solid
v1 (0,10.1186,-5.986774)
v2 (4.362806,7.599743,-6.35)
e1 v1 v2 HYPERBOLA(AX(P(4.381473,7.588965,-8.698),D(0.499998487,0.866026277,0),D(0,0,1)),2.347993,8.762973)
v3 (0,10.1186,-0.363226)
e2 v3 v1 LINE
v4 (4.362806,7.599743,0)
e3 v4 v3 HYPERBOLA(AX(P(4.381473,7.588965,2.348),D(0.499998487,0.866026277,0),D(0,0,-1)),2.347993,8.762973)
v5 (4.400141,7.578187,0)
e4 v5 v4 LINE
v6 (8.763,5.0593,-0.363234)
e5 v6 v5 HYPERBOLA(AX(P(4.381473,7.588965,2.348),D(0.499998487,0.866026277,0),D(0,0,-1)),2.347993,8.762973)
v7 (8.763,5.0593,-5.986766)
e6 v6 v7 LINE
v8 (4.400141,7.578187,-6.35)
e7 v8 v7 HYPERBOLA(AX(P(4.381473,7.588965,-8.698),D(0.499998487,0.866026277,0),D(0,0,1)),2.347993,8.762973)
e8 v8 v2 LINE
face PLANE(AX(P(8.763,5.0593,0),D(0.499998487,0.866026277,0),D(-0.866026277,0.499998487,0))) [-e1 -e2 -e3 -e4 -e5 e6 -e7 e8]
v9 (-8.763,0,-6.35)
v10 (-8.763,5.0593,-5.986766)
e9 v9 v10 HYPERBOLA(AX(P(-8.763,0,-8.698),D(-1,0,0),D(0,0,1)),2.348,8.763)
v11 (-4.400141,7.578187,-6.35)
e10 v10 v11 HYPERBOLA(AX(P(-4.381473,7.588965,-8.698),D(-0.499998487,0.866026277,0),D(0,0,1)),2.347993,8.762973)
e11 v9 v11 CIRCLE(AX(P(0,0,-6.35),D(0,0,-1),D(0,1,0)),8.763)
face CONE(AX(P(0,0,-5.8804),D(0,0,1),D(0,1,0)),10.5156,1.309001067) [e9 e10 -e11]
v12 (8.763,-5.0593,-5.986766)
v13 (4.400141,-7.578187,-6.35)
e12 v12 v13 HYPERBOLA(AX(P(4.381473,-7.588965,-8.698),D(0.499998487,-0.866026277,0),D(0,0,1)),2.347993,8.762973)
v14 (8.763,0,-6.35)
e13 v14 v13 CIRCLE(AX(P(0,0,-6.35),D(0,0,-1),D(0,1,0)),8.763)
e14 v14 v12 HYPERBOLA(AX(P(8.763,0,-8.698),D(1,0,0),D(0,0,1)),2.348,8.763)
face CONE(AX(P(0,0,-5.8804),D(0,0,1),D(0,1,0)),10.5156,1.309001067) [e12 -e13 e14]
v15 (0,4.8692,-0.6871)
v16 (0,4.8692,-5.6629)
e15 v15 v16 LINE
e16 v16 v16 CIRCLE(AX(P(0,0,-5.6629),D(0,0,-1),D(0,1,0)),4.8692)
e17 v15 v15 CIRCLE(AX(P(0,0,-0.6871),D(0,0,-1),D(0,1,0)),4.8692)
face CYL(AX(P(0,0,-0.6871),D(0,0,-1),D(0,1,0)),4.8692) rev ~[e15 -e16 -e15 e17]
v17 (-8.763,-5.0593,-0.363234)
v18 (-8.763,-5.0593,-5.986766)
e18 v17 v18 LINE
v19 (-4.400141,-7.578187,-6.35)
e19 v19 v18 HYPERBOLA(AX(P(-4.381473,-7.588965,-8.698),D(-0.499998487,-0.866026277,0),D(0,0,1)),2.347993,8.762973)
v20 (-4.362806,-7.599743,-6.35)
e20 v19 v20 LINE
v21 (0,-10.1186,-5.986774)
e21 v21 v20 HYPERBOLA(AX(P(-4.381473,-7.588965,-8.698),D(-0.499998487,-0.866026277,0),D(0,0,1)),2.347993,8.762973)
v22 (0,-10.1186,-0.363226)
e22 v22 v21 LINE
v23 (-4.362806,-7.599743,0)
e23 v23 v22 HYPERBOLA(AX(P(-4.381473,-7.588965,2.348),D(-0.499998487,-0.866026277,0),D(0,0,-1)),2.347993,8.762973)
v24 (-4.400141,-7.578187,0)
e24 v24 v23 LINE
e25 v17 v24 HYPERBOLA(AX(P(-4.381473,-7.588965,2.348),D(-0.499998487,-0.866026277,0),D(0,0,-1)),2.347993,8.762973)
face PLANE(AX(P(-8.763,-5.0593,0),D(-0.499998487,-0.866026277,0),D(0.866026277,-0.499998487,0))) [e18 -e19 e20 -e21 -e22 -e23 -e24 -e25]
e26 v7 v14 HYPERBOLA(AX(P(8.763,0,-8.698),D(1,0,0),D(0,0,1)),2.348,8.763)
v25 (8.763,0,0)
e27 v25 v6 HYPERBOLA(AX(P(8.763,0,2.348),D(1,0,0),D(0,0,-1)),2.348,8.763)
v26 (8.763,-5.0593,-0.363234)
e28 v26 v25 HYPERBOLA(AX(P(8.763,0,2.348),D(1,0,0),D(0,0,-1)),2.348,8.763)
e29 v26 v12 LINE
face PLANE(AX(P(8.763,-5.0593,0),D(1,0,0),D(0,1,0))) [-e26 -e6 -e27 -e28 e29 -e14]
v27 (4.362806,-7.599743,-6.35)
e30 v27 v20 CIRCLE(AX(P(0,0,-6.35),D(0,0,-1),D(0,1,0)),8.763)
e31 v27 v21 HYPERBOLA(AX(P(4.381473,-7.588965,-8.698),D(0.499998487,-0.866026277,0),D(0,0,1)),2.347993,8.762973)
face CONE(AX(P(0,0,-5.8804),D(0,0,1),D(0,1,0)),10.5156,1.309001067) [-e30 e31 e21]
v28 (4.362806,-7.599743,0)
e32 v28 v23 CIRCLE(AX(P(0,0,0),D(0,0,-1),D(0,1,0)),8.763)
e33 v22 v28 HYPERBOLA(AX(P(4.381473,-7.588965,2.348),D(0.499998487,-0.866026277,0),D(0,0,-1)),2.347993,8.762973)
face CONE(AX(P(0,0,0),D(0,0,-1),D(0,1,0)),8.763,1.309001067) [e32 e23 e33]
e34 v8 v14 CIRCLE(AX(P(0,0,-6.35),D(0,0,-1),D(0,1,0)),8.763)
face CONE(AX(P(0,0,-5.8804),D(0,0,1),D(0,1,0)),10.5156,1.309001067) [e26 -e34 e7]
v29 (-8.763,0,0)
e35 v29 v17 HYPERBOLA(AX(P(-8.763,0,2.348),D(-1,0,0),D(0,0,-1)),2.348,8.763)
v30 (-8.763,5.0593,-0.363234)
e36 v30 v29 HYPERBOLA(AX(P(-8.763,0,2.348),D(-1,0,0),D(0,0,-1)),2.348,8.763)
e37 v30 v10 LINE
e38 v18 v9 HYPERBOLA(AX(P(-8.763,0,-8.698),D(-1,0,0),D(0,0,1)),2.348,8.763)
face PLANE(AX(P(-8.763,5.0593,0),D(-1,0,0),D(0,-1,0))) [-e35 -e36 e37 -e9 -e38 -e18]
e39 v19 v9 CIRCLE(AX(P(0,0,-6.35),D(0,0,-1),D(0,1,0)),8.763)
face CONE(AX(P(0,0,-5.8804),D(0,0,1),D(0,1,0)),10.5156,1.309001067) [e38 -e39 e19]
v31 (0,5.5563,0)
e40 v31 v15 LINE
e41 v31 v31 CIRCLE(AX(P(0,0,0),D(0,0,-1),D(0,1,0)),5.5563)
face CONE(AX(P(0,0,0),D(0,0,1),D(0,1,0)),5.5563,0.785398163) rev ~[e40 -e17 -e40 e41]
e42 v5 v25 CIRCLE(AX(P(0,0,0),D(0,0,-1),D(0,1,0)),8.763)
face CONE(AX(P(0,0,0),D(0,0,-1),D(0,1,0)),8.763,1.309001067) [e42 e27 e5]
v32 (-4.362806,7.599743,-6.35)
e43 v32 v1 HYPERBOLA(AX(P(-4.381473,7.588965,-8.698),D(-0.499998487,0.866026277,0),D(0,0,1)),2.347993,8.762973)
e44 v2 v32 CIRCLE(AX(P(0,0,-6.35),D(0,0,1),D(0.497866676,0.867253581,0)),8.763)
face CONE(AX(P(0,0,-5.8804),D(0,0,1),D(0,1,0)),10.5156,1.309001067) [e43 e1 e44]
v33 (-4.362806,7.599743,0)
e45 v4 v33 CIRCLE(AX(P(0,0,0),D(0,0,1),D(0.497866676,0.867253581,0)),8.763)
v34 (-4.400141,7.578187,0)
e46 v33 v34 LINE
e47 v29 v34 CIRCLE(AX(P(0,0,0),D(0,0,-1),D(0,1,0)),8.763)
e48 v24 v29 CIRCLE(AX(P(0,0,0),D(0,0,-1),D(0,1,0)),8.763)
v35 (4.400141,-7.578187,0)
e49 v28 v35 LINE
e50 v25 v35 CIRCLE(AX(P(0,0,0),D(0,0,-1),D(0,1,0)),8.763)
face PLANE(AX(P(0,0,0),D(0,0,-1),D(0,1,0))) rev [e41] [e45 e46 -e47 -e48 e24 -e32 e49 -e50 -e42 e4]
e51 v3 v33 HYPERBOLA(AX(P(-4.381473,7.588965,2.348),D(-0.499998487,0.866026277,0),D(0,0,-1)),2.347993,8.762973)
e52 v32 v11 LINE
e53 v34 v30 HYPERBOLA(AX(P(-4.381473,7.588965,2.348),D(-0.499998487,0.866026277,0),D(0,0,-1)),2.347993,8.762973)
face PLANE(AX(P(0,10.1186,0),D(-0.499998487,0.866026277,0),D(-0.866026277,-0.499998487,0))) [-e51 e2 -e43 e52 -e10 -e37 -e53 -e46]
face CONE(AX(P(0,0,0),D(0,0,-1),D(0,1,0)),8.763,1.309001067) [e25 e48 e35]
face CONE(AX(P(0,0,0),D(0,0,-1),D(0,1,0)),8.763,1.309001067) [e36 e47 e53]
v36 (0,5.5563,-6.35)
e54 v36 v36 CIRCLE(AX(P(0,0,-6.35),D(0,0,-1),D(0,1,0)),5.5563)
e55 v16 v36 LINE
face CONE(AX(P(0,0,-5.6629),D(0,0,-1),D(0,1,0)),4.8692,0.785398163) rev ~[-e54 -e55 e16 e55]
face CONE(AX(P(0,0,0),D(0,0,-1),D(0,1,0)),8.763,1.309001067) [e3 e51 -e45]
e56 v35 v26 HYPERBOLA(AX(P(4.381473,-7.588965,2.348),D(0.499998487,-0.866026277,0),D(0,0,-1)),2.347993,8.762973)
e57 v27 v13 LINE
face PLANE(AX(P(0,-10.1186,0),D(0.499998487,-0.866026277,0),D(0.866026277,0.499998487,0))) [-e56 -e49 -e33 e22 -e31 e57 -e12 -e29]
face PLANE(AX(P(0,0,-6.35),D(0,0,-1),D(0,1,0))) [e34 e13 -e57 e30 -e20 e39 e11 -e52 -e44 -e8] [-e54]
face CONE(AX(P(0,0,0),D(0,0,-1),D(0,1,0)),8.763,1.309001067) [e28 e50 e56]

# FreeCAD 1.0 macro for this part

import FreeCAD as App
import Part
import Sketcher

V = App.Vector
Q = App.Units.Quantity


def add_polygon(sketch, points):
    """Adds a closed chain of lines whose ends are joined by coincident constraints."""
    first, n = sketch.GeometryCount, len(points)
    for a, b in zip(points, points[1:] + points[:1]):
        sketch.addGeometry(Part.LineSegment(App.Vector(*a, 0), App.Vector(*b, 0)), False)
    for i in range(n):
        sketch.addConstraint(Sketcher.Constraint("Coincident", first + i, 2, first + (i + 1) % n, 1))

doc = App.newDocument("Part")
body = doc.addObject("PartDesign::Body", "Body")

# Sketch on YZ plane
sketch1 = body.newObject("Sketcher::SketchObject", "Sketch")
sketch1.AttachmentSupport = (doc.getObject("YZ_Plane"), [""])
sketch1.MapMode = "FlatFace"
add_polygon(sketch1, [(0, 0), (0, -6.35), (8.763, -6.35), (10.5156, -5.8804), (10.5156, -0.4696), (8.763, 0)])  # lines 0-5
sketch1.addConstraint(Sketcher.Constraint("Vertical", 0))
sketch1.addConstraint(Sketcher.Constraint("Horizontal", 1))
sketch1.addConstraint(Sketcher.Constraint("Vertical", 3))
sketch1.addConstraint(Sketcher.Constraint("Horizontal", 5))
sketch1.addConstraint(Sketcher.Constraint("Coincident", 5, 2, -1, 1))
sketch1.addConstraint(Sketcher.Constraint("Vertical", 1, 2, 4, 2))
sketch1.addConstraint(Sketcher.Constraint("Equal", 2, 4))
sketch1.addConstraint(Sketcher.Constraint("Angle", 2, Q("14.9998 deg")))
sketch1.addConstraint(Sketcher.Constraint("DistanceY", 0, 2, 0, 1, Q("0.25 in")))
sketch1.addConstraint(Sketcher.Constraint("DistanceX", 1, 1, 1, 2, Q("0.345 in")))
sketch1.addConstraint(Sketcher.Constraint("DistanceX", -1, 1, 2, 2, Q("0.414 in")))
revolution = body.newObject("PartDesign::Revolution", "Revolution")
revolution.Profile = sketch1
revolution.ReferenceAxis = (sketch1, ["V_Axis"])
revolution.Angle = 360

# Sketch on XY plane
sketch2 = body.newObject("Sketcher::SketchObject", "Sketch001")
sketch2.AttachmentSupport = (doc.getObject("XY_Plane"), [""])
sketch2.MapMode = "FlatFace"
add_polygon(sketch2, [(-17.526, 17.526), (-17.526, -17.526), (17.526, -17.526), (17.526, 17.526)])  # lines 0-3
add_polygon(sketch2, [(0, -10.1186), (-8.763, -5.0593), (-8.763, 5.0593), (0, 10.1186), (8.763, 5.0593), (8.763, -5.0593)])  # lines 4-9
sketch2.addConstraint(Sketcher.Constraint("Vertical", 0))
sketch2.addConstraint(Sketcher.Constraint("Horizontal", 1))
sketch2.addConstraint(Sketcher.Constraint("Vertical", 2))
sketch2.addConstraint(Sketcher.Constraint("Horizontal", 3))
sketch2.addConstraint(Sketcher.Constraint("Vertical", 5))
sketch2.addConstraint(Sketcher.Constraint("Vertical", 8))
sketch2.addConstraint(Sketcher.Constraint("Symmetric", 0, 2, 2, 2, -1, 1))
sketch2.addConstraint(Sketcher.Constraint("Symmetric", 4, 2, 7, 2, -1, 1))
sketch2.addConstraint(Sketcher.Constraint("Symmetric", 6, 2, 9, 2, -1, 1))
sketch2.addConstraint(Sketcher.Constraint("PointOnObject", 6, 2, -2))
sketch2.addConstraint(Sketcher.Constraint("Parallel", 6, 9))
sketch2.addConstraint(Sketcher.Constraint("Horizontal", 5, 2, 7, 2))
sketch2.addConstraint(Sketcher.Constraint("Equal", 3, 0))
sketch2.addConstraint(Sketcher.Constraint("Angle", 4, Q("150 deg")))
sketch2.addConstraint(Sketcher.Constraint("DistanceX", 1, 1, 1, 2, Q("1.38 in")))
sketch2.addConstraint(Sketcher.Constraint("DistanceX", 5, 2, 7, 2, Q("0.69 in")))
sketch2.addConstraint(Sketcher.Constraint("DistanceY", 5, 1, 5, 2, Q("10.1186 mm")))
pocket1 = body.newObject("PartDesign::Pocket", "Pocket")
pocket1.Profile = sketch2
pocket1.Length = Q("0.25 in")

# Sketch on YZ plane
sketch3 = body.newObject("Sketcher::SketchObject", "Sketch002")
sketch3.AttachmentSupport = (doc.getObject("YZ_Plane"), [""])
sketch3.MapMode = "FlatFace"
add_polygon(sketch3, [(0, 0), (0, -6.35), (5.5563, -6.35), (4.8692, -5.6629), (4.8692, -0.6871), (5.5563, 0)])  # lines 0-5
sketch3.addConstraint(Sketcher.Constraint("Vertical", 0))
sketch3.addConstraint(Sketcher.Constraint("Horizontal", 1))
sketch3.addConstraint(Sketcher.Constraint("Vertical", 3))
sketch3.addConstraint(Sketcher.Constraint("Horizontal", 5))
sketch3.addConstraint(Sketcher.Constraint("Coincident", 5, 2, -1, 1))
sketch3.addConstraint(Sketcher.Constraint("Perpendicular", 2, 4))
sketch3.addConstraint(Sketcher.Constraint("Vertical", 1, 2, 4, 2))
sketch3.addConstraint(Sketcher.Constraint("Equal", 2, 4))
sketch3.addConstraint(Sketcher.Constraint("DistanceY", 0, 2, 0, 1, Q("0.25 in")))
sketch3.addConstraint(Sketcher.Constraint("DistanceX", 1, 1, 1, 2, Q("0.218752 in")))
sketch3.addConstraint(Sketcher.Constraint("DistanceY", 3, 1, 3, 2, Q("0.1959 in")))
groove = body.newObject("PartDesign::Groove", "Groove")
groove.Profile = sketch3
groove.ReferenceAxis = (sketch3, ["V_Axis"])
groove.Angle = 360

doc.recompute()
